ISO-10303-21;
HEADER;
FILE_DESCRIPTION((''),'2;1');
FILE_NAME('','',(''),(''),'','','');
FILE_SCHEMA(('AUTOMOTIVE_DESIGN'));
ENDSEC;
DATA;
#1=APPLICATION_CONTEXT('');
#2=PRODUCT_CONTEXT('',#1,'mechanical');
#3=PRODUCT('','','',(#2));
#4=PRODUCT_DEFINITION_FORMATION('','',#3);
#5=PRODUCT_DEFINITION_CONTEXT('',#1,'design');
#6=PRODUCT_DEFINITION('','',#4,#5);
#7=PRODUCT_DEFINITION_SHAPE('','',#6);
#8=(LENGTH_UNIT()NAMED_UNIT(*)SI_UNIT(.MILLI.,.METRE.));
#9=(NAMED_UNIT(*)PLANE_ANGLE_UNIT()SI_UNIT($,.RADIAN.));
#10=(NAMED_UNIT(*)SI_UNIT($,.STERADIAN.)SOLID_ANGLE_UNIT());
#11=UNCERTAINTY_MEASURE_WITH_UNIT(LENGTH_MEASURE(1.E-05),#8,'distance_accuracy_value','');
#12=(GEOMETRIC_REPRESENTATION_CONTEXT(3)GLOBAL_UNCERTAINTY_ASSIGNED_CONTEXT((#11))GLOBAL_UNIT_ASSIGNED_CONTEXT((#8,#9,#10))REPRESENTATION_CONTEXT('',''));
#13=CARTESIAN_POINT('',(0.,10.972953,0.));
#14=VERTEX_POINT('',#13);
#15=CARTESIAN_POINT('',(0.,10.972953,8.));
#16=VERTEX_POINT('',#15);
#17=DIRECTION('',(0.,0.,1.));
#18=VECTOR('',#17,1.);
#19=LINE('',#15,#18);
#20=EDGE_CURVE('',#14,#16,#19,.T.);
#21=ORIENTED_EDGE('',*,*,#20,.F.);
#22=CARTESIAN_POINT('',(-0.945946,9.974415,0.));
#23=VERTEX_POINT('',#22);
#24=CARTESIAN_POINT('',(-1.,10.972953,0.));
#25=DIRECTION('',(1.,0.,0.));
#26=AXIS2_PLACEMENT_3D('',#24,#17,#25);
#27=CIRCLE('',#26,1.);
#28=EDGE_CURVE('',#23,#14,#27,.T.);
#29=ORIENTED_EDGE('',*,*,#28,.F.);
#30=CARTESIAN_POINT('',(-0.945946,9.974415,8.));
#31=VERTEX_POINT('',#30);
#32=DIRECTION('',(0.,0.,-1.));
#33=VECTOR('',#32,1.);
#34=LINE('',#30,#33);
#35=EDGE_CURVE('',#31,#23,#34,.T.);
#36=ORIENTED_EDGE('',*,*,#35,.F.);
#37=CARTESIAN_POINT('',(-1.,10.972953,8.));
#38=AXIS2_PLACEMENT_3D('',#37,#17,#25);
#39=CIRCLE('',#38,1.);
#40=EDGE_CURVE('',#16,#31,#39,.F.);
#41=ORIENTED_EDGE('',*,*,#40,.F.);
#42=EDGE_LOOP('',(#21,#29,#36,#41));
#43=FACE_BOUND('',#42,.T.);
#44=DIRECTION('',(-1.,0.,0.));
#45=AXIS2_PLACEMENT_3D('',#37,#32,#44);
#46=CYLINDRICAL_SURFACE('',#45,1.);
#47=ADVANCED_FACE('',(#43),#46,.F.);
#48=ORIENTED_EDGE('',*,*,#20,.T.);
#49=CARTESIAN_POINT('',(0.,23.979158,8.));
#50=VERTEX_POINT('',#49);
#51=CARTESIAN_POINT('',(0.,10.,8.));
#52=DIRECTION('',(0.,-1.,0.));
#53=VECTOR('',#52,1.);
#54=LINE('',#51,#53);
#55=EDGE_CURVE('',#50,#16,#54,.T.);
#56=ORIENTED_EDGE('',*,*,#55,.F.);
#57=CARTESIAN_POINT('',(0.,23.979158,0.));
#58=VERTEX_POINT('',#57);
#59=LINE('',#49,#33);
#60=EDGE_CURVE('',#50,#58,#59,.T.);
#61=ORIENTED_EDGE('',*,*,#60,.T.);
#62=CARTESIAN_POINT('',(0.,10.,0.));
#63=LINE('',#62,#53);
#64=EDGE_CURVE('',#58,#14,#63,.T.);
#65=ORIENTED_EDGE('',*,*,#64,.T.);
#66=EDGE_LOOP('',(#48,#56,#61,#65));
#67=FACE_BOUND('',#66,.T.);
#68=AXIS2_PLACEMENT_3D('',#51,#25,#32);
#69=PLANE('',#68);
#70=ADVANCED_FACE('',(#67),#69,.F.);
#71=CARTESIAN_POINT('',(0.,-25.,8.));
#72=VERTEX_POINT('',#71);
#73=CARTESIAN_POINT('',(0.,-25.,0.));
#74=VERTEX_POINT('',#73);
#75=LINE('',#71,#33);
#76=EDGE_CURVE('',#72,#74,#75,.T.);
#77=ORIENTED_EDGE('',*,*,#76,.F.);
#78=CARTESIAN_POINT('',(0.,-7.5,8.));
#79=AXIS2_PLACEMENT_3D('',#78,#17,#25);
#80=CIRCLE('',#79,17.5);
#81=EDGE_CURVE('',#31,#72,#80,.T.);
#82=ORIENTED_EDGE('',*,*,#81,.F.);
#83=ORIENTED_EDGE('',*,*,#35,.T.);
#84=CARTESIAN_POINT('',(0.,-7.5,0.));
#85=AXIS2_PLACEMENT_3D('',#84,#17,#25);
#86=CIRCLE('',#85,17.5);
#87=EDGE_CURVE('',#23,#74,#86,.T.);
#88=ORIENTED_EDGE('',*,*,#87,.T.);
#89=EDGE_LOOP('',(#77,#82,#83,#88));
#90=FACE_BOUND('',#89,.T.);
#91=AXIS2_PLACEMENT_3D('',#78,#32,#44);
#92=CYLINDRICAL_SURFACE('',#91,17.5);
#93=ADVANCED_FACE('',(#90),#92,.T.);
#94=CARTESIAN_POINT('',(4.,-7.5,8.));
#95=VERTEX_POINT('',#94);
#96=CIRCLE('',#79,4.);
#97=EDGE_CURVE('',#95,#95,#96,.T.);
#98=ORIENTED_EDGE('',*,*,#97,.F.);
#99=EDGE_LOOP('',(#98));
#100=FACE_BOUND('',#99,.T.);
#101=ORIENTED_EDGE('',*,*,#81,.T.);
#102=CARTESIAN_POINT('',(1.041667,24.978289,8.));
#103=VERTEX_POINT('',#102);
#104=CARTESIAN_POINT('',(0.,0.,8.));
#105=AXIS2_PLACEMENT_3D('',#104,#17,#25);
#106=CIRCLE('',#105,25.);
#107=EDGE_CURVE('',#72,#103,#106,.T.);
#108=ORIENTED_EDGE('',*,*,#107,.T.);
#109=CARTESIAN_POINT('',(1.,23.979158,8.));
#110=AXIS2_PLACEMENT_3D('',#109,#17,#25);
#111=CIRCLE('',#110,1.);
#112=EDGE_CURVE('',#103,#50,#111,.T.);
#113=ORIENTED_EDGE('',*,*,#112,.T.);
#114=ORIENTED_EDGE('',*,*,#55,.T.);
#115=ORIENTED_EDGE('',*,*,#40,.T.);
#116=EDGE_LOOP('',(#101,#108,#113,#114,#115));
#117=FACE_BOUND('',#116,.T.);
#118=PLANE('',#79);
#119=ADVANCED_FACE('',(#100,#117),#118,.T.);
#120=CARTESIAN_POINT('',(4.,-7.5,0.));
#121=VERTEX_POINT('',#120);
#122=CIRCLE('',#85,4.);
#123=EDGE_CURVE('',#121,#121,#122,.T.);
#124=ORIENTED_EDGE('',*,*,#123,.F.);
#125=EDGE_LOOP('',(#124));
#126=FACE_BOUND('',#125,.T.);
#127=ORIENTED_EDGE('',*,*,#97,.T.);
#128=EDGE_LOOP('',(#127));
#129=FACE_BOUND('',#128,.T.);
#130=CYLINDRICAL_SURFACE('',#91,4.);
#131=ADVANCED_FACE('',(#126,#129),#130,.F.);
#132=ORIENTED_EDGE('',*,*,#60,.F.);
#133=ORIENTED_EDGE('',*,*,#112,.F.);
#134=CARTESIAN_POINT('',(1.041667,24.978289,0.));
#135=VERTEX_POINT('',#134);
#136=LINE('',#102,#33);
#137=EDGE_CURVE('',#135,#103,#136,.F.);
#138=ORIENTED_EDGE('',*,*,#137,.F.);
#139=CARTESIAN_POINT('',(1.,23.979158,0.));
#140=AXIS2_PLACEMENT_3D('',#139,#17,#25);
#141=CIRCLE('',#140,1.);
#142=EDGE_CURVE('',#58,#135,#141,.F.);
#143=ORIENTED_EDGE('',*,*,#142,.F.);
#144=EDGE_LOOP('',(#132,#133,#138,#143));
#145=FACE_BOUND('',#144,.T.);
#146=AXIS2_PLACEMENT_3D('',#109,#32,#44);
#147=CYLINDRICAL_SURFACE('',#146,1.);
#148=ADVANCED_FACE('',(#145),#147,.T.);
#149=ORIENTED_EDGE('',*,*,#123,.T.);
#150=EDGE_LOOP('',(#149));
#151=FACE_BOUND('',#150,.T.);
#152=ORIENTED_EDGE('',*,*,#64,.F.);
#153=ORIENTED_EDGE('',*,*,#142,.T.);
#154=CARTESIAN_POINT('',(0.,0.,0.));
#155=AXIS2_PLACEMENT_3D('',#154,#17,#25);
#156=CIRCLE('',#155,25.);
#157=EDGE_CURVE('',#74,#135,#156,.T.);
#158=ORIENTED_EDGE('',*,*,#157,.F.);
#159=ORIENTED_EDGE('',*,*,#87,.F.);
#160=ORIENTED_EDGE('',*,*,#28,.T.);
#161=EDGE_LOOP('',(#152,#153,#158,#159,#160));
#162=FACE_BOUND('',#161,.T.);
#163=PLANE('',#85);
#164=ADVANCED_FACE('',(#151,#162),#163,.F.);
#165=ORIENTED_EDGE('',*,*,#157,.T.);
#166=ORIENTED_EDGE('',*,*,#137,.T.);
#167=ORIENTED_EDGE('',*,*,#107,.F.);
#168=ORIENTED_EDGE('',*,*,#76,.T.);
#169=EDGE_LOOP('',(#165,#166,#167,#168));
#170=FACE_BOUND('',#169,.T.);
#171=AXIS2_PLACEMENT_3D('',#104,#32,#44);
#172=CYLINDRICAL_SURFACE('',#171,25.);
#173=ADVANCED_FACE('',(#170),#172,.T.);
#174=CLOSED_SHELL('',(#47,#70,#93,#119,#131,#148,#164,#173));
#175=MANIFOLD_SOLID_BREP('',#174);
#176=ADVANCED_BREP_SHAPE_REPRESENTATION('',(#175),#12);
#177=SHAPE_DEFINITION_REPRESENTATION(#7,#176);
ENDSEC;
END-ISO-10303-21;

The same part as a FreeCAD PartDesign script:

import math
import FreeCAD as App
import Part
import Sketcher

V = App.Vector
Q = App.Units.Quantity


def edges_at(feature, points):
    """Names of the edges that pass closest to the given points."""
    edges = feature.Shape.Edges
    near = lambda p: min(range(len(edges)), key=lambda i: edges[i].distToShape(Part.Vertex(*p))[0])
    return sorted({f"Edge{near(p) + 1}" for p in points})

doc = App.newDocument("Part")
body = doc.addObject("PartDesign::Body", "Body")

sketch1 = body.newObject("Sketcher::SketchObject", "Sketch")
sketch1.AttachmentSupport = (doc.getObject("XY_Plane"), [""])
sketch1.MapMode = "FlatFace"
sketch1.addGeometry(Part.LineSegment(V(0, 25, 0), V(0, 10, 0)), False)
sketch1.addGeometry(Part.ArcOfCircle(Part.Circle(V(0, -7.5, 0), V(0, 0, 1), 17.5), math.radians(90), math.radians(270)), False)
sketch1.addGeometry(Part.ArcOfCircle(Part.Circle(V(0, 0, 0), V(0, 0, 1), 25), math.radians(-90), math.radians(90)), False)
sketch1.addGeometry(Part.Circle(V(0, -7.5, 0), V(0, 0, 1), 4), False)
sketch1.addConstraint(Sketcher.Constraint("Coincident", 0, 2, 1, 1))
sketch1.addConstraint(Sketcher.Constraint("Tangent", 1, 2, 2, 1))
sketch1.addConstraint(Sketcher.Constraint("Coincident", 2, 2, 0, 1))
sketch1.addConstraint(Sketcher.Constraint("Vertical", 0))
sketch1.addConstraint(Sketcher.Constraint("Coincident", 2, 3, -1, 1))
sketch1.addConstraint(Sketcher.Constraint("Coincident", 3, 3, 1, 3))
sketch1.addConstraint(Sketcher.Constraint("PointOnObject", 1, 3, -2))
sketch1.addConstraint(Sketcher.Constraint("PointOnObject", 0, 2, -2))
sketch1.addConstraint(Sketcher.Constraint("Diameter", 3, Q("8 mm")))
sketch1.addConstraint(Sketcher.Constraint("Radius", 2, Q("25 mm")))
sketch1.addConstraint(Sketcher.Constraint("Radius", 1, Q("17.5 mm")))
pad1 = body.newObject("PartDesign::Pad", "Pad")
pad1.Profile = sketch1
pad1.Length = 8
doc.recompute()

fillet = body.newObject("PartDesign::Fillet", "Fillet")
fillet.Base = (pad1, edges_at(pad1, [(0, 10, 4), (0, 25, 4)]))
fillet.Radius = 1

doc.recompute()
